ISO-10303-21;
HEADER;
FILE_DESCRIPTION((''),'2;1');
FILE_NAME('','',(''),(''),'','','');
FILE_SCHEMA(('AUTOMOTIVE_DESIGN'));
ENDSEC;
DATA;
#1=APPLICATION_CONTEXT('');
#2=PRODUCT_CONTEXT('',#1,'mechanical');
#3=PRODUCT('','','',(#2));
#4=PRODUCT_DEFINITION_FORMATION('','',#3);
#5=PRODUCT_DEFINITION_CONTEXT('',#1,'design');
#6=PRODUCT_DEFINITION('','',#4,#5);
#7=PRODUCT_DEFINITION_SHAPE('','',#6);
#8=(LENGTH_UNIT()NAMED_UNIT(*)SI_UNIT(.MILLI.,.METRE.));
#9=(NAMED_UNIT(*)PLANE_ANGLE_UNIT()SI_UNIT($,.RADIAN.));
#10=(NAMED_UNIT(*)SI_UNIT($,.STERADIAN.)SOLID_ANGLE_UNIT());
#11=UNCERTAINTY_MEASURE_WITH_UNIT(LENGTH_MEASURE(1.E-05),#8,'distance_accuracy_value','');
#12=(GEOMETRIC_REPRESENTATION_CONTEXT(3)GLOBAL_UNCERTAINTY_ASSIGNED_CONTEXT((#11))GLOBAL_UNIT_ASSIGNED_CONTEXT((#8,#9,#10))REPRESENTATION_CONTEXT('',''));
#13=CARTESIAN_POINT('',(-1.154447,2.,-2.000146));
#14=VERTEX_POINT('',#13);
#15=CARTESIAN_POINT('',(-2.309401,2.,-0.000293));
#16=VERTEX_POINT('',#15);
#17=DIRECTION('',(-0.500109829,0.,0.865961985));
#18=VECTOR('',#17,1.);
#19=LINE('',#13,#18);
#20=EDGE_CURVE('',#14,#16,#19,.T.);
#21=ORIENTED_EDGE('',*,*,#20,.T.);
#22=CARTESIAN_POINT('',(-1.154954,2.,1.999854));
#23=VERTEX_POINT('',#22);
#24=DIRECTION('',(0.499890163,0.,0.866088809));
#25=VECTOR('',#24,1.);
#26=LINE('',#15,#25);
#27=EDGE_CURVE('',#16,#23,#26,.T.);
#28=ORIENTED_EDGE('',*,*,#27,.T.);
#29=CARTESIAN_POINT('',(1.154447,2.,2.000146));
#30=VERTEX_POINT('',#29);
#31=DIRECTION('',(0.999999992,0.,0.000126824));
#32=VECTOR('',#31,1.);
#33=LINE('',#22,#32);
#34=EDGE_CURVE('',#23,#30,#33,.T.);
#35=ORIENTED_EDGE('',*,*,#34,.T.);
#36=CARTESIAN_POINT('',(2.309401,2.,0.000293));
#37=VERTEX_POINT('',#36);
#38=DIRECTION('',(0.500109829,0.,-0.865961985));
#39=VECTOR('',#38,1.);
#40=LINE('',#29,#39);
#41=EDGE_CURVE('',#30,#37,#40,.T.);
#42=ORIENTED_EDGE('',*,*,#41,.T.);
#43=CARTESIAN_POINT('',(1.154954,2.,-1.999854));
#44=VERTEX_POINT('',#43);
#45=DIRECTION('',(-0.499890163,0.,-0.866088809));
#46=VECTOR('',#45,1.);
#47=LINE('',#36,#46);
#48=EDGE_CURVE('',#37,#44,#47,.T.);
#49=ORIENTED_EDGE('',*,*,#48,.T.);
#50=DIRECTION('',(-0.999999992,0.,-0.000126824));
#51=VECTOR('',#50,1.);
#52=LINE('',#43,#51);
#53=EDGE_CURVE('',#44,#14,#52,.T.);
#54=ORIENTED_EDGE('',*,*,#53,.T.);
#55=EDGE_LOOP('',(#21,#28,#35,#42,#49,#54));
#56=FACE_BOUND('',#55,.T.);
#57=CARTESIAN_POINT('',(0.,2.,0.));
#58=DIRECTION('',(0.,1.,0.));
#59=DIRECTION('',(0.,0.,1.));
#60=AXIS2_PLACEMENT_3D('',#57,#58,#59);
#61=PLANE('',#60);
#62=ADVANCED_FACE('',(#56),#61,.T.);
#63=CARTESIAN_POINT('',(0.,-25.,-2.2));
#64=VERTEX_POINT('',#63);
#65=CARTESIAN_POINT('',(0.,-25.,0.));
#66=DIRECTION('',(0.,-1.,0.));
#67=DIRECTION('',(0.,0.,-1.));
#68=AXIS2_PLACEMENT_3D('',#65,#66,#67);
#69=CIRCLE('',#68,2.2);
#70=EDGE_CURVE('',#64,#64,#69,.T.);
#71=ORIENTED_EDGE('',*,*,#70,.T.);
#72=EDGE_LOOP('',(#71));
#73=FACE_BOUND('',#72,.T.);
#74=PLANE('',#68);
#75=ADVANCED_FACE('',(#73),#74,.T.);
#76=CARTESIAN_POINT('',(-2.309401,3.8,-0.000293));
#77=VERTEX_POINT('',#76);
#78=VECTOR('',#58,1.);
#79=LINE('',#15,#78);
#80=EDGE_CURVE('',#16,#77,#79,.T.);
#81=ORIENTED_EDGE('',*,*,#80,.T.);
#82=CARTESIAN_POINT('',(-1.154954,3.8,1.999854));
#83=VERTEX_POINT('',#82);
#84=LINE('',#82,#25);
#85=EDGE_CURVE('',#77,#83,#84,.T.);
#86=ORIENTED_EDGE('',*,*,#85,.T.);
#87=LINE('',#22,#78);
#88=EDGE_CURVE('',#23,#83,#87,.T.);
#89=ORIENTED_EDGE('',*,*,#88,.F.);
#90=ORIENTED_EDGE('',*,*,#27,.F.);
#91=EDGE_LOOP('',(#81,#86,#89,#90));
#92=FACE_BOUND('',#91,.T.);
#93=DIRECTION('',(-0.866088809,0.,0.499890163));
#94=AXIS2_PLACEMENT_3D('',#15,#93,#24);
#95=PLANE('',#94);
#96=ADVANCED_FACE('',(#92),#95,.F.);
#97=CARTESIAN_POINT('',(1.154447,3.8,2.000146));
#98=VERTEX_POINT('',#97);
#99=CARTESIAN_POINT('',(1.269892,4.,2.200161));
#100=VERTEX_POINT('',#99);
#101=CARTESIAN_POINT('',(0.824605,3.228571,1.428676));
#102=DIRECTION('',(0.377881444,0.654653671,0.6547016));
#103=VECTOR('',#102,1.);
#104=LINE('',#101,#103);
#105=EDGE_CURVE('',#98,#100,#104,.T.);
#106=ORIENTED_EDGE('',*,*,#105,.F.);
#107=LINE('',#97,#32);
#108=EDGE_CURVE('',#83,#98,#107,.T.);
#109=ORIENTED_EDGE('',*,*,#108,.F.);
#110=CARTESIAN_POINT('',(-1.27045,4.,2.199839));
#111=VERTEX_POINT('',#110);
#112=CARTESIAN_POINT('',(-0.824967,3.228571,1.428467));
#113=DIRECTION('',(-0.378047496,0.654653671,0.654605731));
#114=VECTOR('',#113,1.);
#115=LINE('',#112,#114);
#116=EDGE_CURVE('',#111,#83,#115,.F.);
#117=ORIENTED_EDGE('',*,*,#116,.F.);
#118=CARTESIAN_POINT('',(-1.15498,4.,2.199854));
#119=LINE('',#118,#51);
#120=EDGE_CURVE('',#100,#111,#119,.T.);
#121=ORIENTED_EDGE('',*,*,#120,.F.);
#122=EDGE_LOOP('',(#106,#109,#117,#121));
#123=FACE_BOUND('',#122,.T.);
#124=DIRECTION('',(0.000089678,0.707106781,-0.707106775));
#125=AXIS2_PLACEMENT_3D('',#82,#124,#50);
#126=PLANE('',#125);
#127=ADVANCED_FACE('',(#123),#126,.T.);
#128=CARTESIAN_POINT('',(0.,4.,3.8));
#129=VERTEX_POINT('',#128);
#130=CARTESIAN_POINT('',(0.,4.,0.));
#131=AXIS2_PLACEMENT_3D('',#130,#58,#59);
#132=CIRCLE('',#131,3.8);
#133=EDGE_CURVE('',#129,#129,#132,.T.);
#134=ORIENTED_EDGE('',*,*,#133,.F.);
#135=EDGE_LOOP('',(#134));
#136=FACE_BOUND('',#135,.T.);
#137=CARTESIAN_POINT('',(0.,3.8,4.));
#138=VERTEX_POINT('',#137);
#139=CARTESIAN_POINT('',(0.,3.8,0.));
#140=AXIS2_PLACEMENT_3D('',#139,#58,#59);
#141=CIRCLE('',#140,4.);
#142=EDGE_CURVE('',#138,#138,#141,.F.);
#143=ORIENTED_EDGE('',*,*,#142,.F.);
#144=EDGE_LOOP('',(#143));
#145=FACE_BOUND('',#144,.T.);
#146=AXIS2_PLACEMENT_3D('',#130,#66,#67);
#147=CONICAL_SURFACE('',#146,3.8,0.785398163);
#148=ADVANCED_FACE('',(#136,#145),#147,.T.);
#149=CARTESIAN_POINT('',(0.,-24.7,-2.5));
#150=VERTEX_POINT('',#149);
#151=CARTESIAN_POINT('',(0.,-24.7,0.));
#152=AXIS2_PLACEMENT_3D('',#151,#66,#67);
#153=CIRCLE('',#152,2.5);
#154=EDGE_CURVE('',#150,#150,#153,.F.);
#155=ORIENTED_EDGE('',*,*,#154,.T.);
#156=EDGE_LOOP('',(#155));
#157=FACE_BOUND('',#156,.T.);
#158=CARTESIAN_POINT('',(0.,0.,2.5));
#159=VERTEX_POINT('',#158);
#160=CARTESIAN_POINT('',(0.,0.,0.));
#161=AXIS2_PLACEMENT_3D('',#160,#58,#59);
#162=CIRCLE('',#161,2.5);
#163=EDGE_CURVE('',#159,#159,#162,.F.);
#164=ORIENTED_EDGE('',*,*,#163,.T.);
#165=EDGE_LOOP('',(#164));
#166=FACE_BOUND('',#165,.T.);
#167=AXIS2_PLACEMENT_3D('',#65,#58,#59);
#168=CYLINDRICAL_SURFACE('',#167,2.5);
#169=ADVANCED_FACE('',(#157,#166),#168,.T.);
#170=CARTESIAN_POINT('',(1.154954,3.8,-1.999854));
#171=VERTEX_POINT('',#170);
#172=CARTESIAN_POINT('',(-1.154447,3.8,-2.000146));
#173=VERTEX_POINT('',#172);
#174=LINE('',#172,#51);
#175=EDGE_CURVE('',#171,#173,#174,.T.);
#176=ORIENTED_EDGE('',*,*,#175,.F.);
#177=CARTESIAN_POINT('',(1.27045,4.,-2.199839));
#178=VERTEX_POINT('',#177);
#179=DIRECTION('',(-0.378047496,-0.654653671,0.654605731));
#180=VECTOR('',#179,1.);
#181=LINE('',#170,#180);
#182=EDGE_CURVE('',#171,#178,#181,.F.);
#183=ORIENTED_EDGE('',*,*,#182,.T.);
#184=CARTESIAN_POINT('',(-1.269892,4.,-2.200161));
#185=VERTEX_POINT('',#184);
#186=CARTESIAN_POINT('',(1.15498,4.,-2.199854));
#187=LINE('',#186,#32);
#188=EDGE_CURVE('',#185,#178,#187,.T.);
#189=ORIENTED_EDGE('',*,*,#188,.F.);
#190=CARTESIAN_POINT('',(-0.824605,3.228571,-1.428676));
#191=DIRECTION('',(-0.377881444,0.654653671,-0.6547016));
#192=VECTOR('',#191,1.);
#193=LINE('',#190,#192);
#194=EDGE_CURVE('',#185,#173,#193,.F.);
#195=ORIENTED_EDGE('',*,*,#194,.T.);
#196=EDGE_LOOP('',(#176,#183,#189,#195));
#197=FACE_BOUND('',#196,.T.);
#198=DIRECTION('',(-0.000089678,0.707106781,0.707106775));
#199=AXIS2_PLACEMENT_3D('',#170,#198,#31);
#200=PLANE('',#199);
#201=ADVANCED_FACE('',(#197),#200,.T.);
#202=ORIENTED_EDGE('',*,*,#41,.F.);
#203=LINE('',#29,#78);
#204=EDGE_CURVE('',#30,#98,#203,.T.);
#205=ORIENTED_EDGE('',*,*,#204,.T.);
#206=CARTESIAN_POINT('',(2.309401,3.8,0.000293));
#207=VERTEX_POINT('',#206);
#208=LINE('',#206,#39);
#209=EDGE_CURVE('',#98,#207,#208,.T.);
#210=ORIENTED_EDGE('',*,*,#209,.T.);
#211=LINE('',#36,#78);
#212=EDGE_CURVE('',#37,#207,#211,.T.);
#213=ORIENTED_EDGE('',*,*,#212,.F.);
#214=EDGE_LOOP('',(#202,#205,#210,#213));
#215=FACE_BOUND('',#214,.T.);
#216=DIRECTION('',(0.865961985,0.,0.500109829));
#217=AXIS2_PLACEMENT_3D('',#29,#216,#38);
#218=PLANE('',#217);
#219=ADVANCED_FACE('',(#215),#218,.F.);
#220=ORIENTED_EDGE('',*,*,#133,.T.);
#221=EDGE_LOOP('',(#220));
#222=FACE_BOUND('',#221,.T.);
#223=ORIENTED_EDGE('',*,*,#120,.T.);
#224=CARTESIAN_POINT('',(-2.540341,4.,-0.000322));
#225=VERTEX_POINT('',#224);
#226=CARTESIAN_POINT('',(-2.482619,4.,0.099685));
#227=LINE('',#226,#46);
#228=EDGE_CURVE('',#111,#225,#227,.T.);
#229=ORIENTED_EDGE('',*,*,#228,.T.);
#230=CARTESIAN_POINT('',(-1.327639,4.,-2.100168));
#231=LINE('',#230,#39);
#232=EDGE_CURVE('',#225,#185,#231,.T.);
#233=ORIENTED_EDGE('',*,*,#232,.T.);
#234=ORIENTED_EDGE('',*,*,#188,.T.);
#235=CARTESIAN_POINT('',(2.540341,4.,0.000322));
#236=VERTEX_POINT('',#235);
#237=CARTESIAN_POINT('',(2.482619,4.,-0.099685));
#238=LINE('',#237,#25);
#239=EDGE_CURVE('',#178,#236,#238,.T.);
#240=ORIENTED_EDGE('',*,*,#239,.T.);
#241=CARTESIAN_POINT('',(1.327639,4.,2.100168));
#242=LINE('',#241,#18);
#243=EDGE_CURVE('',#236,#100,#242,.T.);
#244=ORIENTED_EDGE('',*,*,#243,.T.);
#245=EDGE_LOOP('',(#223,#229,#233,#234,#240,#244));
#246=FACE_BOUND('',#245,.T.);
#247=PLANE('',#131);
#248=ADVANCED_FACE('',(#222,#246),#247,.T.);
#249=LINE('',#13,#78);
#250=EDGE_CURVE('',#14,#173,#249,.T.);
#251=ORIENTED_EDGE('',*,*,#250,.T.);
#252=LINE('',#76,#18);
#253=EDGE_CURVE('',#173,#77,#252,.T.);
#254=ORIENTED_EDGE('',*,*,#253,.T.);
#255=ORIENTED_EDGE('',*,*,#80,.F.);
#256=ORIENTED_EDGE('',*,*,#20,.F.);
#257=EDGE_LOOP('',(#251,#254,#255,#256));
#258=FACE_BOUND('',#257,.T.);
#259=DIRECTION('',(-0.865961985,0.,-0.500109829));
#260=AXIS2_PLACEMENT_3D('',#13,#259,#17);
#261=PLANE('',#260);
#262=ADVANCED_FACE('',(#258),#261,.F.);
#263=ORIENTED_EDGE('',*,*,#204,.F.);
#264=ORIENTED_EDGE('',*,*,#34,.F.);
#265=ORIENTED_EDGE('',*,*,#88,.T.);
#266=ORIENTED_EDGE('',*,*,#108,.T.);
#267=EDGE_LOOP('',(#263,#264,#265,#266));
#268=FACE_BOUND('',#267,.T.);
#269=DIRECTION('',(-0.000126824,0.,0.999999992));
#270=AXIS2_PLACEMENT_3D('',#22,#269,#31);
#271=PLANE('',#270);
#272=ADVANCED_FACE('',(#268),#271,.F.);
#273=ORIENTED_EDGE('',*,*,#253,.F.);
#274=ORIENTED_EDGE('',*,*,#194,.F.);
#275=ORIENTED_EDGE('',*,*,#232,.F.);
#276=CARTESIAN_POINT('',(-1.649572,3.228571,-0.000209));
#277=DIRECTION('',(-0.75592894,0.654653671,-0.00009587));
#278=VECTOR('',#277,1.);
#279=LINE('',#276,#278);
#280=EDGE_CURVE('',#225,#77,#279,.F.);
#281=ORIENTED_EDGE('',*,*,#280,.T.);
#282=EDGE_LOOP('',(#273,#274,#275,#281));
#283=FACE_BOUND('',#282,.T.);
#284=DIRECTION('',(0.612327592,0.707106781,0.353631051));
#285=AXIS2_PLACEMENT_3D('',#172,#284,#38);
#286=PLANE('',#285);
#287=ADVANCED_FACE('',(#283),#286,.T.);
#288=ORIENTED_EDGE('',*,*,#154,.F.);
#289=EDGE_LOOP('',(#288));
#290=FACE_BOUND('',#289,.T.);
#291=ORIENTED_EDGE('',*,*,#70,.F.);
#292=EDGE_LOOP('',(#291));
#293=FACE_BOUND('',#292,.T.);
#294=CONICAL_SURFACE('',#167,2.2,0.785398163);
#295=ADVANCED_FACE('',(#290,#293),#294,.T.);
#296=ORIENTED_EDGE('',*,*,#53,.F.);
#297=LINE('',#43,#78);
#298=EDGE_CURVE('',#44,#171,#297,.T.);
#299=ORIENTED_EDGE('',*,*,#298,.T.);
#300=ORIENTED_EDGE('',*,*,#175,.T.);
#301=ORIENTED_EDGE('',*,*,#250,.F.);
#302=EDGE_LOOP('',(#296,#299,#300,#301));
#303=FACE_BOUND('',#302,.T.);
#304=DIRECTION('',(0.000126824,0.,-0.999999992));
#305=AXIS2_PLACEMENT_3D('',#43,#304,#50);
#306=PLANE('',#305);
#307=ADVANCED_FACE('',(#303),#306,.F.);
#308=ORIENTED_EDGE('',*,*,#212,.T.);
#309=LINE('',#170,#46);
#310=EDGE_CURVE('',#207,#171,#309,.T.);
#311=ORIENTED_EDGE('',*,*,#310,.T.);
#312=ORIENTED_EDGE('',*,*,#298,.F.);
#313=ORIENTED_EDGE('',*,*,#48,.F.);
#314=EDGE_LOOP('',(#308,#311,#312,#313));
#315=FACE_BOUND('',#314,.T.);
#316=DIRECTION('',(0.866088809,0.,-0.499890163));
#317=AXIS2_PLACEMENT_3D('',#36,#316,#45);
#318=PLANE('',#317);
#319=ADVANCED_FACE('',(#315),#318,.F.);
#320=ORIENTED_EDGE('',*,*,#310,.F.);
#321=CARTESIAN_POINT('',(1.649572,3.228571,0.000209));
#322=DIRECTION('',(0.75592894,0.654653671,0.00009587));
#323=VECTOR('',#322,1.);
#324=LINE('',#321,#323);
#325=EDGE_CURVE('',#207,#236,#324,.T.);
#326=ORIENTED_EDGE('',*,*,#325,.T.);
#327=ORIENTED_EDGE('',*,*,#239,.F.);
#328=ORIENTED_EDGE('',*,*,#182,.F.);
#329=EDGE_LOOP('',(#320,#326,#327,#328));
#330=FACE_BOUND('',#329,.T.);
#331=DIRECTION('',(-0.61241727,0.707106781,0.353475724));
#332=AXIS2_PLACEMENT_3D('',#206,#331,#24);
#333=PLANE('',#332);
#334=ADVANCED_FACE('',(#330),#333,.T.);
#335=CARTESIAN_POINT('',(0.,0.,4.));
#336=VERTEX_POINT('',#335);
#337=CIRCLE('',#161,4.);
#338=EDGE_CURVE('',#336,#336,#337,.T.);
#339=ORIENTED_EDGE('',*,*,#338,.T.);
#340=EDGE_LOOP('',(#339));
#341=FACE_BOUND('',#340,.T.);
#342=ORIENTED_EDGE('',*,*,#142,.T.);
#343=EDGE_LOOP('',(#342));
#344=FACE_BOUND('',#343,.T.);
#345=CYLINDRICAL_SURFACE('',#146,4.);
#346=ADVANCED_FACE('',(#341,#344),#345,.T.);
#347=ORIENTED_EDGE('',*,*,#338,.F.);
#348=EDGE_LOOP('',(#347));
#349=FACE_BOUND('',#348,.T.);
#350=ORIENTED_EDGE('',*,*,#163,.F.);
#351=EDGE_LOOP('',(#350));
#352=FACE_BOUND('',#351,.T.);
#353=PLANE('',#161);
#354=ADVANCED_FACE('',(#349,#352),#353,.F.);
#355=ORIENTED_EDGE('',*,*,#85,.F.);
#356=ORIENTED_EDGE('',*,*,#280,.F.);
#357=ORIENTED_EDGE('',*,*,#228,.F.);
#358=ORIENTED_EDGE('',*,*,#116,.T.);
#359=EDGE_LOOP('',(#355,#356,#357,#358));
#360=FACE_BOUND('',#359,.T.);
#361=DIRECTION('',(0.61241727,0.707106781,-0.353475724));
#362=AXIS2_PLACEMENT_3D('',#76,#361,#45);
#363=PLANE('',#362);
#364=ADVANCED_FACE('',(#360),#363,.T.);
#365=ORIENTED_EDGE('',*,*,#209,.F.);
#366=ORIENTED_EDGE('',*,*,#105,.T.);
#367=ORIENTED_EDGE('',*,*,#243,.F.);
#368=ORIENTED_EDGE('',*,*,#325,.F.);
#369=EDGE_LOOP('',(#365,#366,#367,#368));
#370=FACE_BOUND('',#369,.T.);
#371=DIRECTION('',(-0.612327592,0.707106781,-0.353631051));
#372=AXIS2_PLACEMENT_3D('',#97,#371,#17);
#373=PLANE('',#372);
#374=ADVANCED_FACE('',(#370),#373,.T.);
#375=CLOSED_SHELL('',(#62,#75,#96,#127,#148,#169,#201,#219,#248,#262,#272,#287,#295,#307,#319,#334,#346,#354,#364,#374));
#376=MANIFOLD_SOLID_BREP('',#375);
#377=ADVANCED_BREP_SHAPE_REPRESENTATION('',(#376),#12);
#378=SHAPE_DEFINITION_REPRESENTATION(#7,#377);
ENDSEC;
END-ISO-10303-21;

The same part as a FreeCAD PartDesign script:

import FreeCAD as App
import Part
import Sketcher

V = App.Vector


def edges_at(feature, points):
    """Names of the edges that pass closest to the given points."""
    edges = feature.Shape.Edges
    near = lambda p: min(range(len(edges)), key=lambda i: edges[i].distToShape(Part.Vertex(*p))[0])
    return sorted({f"Edge{near(p) + 1}" for p in points})

doc = App.newDocument("Part")
body = doc.addObject("PartDesign::Body", "Body")

# Sketch on XZ plane
sketch1 = body.newObject("Sketcher::SketchObject", "Sketch")
sketch1.AttachmentSupport = (doc.getObject("XZ_Plane"), [""])
sketch1.MapMode = "FlatFace"
sketch1.addGeometry(Part.Circle(V(0, 0, 0), V(0, 0, 1), 4), False)
sketch1.addConstraint([
    Sketcher.Constraint("Coincident", 0, 3, -1, 1),
    Sketcher.Constraint("Diameter", 0, 8.0),
])
pad1 = body.newObject("PartDesign::Pad", "Pad")
pad1.Profile = sketch1
pad1.Length = 4
pad1.Reversed = True

# Sketch on XZ plane
sketch2 = body.newObject("Sketcher::SketchObject", "Sketch001")
sketch2.AttachmentSupport = (doc.getObject("XZ_Plane"), [""])
sketch2.MapMode = "FlatFace"
sketch2.addGeometry(Part.Circle(V(0, 0, 0), V(0, 0, 1), 2.5), False)
sketch2.addConstraint([
    Sketcher.Constraint("Coincident", 0, 3, -1, 1),
    Sketcher.Constraint("Diameter", 0, 5.0),
])
pad2 = body.newObject("PartDesign::Pad", "Pad001")
pad2.Profile = sketch2
pad2.Length = 25

# Sketch on XZ plane
sketch3 = body.newObject("Sketcher::SketchObject", "Sketch002")
sketch3.AttachmentSupport = (doc.getObject("XZ_Plane"), [""])
sketch3.MapMode = "FlatFace"
sketch3.AttachmentOffset = App.Placement(V(0, 0, -4), App.Rotation())
sketch3.addGeometry([
    Part.LineSegment(V(1.154954, -1.999854, 0), V(-1.154447, -2.000146, 0)),  # 0
    Part.LineSegment(V(-1.154447, -2.000146, 0), V(-2.309401, -0.000293, 0)),  # 1
    Part.LineSegment(V(-2.309401, -0.000293, 0), V(-1.154954, 1.999854, 0)),  # 2
    Part.LineSegment(V(-1.154954, 1.999854, 0), V(1.154447, 2.000146, 0)),  # 3
    Part.LineSegment(V(1.154447, 2.000146, 0), V(2.309401, 0.000293, 0)),  # 4
    Part.LineSegment(V(2.309401, 0.000293, 0), V(1.154954, -1.999854, 0)),  # 5
], False)
sketch3.addConstraint([
    Sketcher.Constraint("Coincident", 0, 2, 1, 1),
    Sketcher.Constraint("Coincident", 1, 2, 2, 1),
    Sketcher.Constraint("Coincident", 2, 2, 3, 1),
    Sketcher.Constraint("Coincident", 3, 2, 4, 1),
    Sketcher.Constraint("Coincident", 4, 2, 5, 1),
    Sketcher.Constraint("Coincident", 5, 2, 0, 1),
    Sketcher.Constraint("Symmetric", 0, 2, 3, 2, -1, 1),
    Sketcher.Constraint("Symmetric", 1, 2, 4, 2, -1, 1),
    Sketcher.Constraint("Symmetric", 2, 2, 5, 2, -1, 1),
    Sketcher.Constraint("Equal", 0, 1),
    Sketcher.Constraint("Equal", 1, 2),
    Sketcher.Constraint("DistanceY", 0, 2, 2, 2, 4.0),
    Sketcher.Constraint("Distance", 0, 2.309401),
    Sketcher.Constraint("DistanceY", 1, 2, 3, 2, 2.000439),
    Sketcher.Constraint("DistanceX", 2, 2, 5, 2, 2.309908),
])
pocket1 = body.newObject("PartDesign::Pocket", "Pocket")
pocket1.Profile = sketch3
pocket1.Length = 2
pocket1.Reversed = True
doc.recompute()

chamfer = body.newObject("PartDesign::Chamfer", "Chamfer")
chamfer.Base = (pocket1, edges_at(pocket1, [
    (1.732, 4, -1),
    (0, 4, -2),
    (-1.732, 4, -1),
    (-1.732, 4, 1),
    (0, 4, 2),
    (1.732, 4, 1),
    (-4, 4, 0),
]))
chamfer.Size = 0.2
doc.recompute()

chamfer2 = body.newObject("PartDesign::Chamfer", "Chamfer001")
chamfer2.Base = (chamfer, edges_at(chamfer, [(-2.5, -25, 0)]))
chamfer2.Size = 0.3

doc.recompute()
